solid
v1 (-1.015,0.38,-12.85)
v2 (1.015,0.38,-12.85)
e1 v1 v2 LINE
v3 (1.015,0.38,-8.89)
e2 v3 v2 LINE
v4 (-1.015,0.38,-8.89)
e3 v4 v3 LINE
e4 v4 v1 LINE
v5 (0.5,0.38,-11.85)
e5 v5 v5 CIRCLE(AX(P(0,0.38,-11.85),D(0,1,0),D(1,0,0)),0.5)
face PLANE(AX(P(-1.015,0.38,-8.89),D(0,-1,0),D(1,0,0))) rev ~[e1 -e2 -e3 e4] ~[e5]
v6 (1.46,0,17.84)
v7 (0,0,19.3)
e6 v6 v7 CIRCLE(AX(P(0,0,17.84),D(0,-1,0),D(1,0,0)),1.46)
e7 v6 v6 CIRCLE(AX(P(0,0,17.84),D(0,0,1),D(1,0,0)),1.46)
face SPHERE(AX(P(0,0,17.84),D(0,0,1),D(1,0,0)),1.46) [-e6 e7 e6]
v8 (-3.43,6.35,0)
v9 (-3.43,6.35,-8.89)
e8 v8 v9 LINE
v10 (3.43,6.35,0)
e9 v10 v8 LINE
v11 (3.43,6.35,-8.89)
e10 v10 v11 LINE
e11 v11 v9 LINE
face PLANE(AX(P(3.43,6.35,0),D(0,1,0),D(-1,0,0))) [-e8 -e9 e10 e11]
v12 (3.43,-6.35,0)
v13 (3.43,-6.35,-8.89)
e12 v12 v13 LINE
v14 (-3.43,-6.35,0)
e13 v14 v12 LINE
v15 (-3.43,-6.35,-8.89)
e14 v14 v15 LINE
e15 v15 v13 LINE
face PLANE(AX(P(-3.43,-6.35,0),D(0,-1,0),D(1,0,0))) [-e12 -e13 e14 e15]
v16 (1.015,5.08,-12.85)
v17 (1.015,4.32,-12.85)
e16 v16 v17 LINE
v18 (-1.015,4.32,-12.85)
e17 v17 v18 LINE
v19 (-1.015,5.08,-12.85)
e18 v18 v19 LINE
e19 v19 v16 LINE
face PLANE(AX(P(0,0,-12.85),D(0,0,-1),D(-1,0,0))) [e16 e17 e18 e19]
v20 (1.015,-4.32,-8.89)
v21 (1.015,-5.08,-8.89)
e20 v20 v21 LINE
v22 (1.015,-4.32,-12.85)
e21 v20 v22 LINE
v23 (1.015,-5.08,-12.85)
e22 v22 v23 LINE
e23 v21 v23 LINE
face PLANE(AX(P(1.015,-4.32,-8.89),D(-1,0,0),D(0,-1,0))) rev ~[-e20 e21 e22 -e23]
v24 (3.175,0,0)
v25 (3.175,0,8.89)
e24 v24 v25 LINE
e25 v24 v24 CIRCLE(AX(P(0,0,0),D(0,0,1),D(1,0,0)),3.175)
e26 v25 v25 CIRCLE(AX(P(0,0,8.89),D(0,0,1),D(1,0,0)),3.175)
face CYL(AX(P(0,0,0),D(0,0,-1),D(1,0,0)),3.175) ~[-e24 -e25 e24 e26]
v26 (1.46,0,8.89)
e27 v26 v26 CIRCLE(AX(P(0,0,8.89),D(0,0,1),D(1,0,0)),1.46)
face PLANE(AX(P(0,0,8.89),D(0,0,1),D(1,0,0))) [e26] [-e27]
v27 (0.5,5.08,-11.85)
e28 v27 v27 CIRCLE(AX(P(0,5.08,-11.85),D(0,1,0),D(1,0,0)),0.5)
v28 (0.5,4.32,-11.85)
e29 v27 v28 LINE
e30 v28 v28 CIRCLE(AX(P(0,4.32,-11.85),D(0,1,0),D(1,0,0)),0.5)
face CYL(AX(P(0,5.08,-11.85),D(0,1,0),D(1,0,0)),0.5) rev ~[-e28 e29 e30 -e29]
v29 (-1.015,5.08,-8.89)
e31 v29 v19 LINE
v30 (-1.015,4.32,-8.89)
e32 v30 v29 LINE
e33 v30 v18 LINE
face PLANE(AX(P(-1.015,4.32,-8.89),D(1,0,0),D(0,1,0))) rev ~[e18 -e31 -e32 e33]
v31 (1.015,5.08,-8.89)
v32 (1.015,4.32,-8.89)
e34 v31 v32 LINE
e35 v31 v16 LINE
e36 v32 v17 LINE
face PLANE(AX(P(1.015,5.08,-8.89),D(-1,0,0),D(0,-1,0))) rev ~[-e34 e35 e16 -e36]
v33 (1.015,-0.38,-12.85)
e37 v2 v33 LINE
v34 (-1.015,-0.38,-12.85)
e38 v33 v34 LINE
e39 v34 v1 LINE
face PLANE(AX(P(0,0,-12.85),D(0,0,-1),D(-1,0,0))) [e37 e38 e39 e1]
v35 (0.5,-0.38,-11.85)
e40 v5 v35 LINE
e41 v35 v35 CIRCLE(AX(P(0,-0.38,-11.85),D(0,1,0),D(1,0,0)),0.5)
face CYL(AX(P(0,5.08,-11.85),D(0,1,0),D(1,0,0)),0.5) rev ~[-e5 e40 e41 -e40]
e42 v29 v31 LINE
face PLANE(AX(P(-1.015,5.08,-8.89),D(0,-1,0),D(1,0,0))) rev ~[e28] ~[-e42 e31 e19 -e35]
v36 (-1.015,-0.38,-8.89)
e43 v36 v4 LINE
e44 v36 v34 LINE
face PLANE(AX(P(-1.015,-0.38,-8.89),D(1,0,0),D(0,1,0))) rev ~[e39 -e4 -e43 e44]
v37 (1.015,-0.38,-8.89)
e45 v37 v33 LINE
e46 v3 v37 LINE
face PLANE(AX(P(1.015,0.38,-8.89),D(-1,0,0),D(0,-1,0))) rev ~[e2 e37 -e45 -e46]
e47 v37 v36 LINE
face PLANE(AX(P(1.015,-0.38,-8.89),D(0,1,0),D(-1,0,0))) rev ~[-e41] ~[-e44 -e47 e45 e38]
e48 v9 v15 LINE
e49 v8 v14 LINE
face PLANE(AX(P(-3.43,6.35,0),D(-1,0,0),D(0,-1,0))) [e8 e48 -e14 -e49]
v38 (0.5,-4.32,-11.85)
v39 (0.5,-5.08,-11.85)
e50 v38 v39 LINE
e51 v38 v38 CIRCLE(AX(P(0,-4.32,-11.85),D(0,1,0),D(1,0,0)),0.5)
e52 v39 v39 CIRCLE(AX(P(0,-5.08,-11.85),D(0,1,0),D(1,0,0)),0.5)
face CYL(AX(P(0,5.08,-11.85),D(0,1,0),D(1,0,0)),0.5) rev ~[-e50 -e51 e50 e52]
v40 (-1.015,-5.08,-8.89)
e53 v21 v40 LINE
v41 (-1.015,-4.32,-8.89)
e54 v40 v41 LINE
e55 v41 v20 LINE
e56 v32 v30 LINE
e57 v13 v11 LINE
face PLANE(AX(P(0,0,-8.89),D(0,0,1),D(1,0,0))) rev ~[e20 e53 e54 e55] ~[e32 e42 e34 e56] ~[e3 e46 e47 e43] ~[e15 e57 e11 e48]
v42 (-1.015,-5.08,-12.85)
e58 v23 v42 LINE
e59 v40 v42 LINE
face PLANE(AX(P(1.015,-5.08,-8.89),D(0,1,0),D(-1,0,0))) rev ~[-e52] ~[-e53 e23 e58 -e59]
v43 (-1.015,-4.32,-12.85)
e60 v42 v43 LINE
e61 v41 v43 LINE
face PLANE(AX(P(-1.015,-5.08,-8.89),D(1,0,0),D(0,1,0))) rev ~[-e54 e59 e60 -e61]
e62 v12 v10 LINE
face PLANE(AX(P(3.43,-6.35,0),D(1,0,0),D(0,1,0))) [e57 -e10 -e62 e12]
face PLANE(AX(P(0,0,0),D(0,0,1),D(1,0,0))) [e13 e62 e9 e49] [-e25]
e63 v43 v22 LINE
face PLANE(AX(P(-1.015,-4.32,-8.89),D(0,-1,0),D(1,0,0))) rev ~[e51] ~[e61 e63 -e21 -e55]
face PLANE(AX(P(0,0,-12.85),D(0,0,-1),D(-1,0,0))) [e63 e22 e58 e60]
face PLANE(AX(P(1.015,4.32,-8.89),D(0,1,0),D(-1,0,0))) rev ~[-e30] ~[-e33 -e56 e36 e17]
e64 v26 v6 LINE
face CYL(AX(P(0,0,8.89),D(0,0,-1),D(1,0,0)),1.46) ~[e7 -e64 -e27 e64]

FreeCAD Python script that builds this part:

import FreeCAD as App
import Part
import Sketcher
from FreeCAD import Vector
Q = App.Units.Quantity


def edges_at(feature, points):
    """Names of the edges that pass closest to the given points."""
    edges = feature.Shape.Edges
    near = lambda p: min(range(len(edges)), key=lambda i: edges[i].distToShape(Part.Vertex(*p))[0])
    return sorted({f"Edge{near(p) + 1}" for p in points})


def add_polygon(sketch, points):
    """Adds a closed chain of lines whose ends are joined by coincident constraints."""
    first, n = sketch.GeometryCount, len(points)
    for a, b in zip(points, points[1:] + points[:1]):
        sketch.addGeometry(Part.LineSegment(App.Vector(*a, 0), App.Vector(*b, 0)), False)
    for i in range(n):
        sketch.addConstraint(Sketcher.Constraint("Coincident", first + i, 2, first + (i + 1) % n, 1))

doc = App.newDocument("Part")
body = doc.addObject("PartDesign::Body", "Body")

sketch1 = body.newObject("Sketcher::SketchObject", "Sketch")
sketch1.AttachmentSupport = (doc.getObject("XY_Plane"), [""])
sketch1.MapMode = "FlatFace"
add_polygon(sketch1, [(-3, 6), (-3, -6), (3, -6), (3, 6)])
sketch1.addConstraint([
    Sketcher.Constraint("Vertical", 0),
    Sketcher.Constraint("Horizontal", 1),
    Sketcher.Constraint("Vertical", 2),
    Sketcher.Constraint("Horizontal", 3),
    Sketcher.Constraint("Symmetric", 0, 2, 2, 2, -1, 1),
    Sketcher.Constraint("DistanceY", 0, 2, 0, 1, Q("0.5 in")),
    Sketcher.Constraint("DistanceX", 1, 1, 1, 2, Q("6.86 mm")),
])
pad1 = body.newObject("PartDesign::Pad", "Pad")
pad1.Profile = sketch1
pad1.Length = Q("0.35 in")
pad1.Reversed = True

sketch2 = body.newObject("Sketcher::SketchObject", "Sketch001")
sketch2.AttachmentSupport = (doc.getObject("XY_Plane"), [""])
sketch2.MapMode = "FlatFace"
sketch2.addGeometry(Part.Circle(Vector(0, 0, 0), Vector(0, 0, 1), 3.2), False)
sketch2.addConstraint([
    Sketcher.Constraint("Coincident", 0, 3, -1, 1),
    Sketcher.Constraint("Diameter", 0, Q("0.25 in")),
])
pad2 = body.newObject("PartDesign::Pad", "Pad001")
pad2.Profile = sketch2
pad2.Length = Q("0.35 in")

sketch3 = body.newObject("Sketcher::SketchObject", "Sketch002")
sketch3.AttachmentSupport = (doc.getObject("XY_Plane"), [""])
sketch3.MapMode = "FlatFace"
sketch3.AttachmentOffset = App.Placement(Vector(0, 0, -0.35 * 25.4), App.Rotation())
add_polygon(sketch3, [(1, 0.4), (1, -0.4), (-1, -0.4), (-1, 0.4)])
add_polygon(sketch3, [(1, -4.3), (1, -5.1), (-1, -5.1), (-1, -4.3)])
add_polygon(sketch3, [(1, 5.1), (1, 4.3), (-1, 4.3), (-1, 5.1)])
sketch3.addConstraint([
    Sketcher.Constraint("Vertical", 0),
    Sketcher.Constraint("Horizontal", 1),
    Sketcher.Constraint("Vertical", 2),
    Sketcher.Constraint("Horizontal", 3),
    Sketcher.Constraint("Vertical", 4),
    Sketcher.Constraint("Horizontal", 5),
    Sketcher.Constraint("Vertical", 6),
    Sketcher.Constraint("Horizontal", 7),
    Sketcher.Constraint("Vertical", 8),
    Sketcher.Constraint("Horizontal", 9),
    Sketcher.Constraint("Vertical", 10),
    Sketcher.Constraint("Horizontal", 11),
    Sketcher.Constraint("Symmetric", 0, 2, 2, 2, -1, 1),
    Sketcher.Constraint("Symmetric", 6, 2, 8, 2, -1, 1),
    Sketcher.Constraint("Symmetric", 4, 2, 10, 2, -1, 1),
    Sketcher.Constraint("Vertical", 3, 2, 4, 2),
    Sketcher.Constraint("Vertical", 2, 2, 5, 2),
    Sketcher.Constraint("Equal", 2, 4),
    Sketcher.Constraint("DistanceX", 1, 2, 1, 1, Q("2.03 mm")),
    Sketcher.Constraint("DistanceY", 0, 2, 0, 1, Q("0.76 mm")),
    Sketcher.Constraint("DistanceY", 4, 2, -1, 1, Q("0.2 in")),
])
pad3 = body.newObject("PartDesign::Pad", "Pad002")
pad3.Profile = sketch3
pad3.Length = Q("0.1559055 in")
pad3.Reversed = True

sketch4 = body.newObject("Sketcher::SketchObject", "Sketch003")
sketch4.AttachmentSupport = (doc.getObject("XZ_Plane"), [""])
sketch4.MapMode = "FlatFace"
sketch4.AttachmentOffset = App.Placement(Vector(0, 0, -0.2 * 25.4), App.Rotation())
sketch4.addGeometry(Part.Circle(Vector(0, -11.8, 0), Vector(0, 0, 1), 0.5), False)
sketch4.addConstraint([
    Sketcher.Constraint("PointOnObject", 0, 3, -2),
    Sketcher.Constraint("Diameter", 0, Q("1 mm")),
    Sketcher.Constraint("DistanceY", 0, 3, -1, 1, Q("11.85 mm")),
])
pocket1 = body.newObject("PartDesign::Pocket", "Pocket")
pocket1.Profile = sketch4
pocket1.Type = "ThroughAll"
pocket1.Reversed = True

sketch5 = body.newObject("Sketcher::SketchObject", "Sketch004")
sketch5.AttachmentSupport = (doc.getObject("XY_Plane"), [""])
sketch5.MapMode = "FlatFace"
sketch5.AttachmentOffset = App.Placement(Vector(0, 0, 0.35 * 25.4), App.Rotation())
sketch5.addGeometry(Part.Circle(Vector(0, 0, 0), Vector(0, 0, 1), 1.5), False)
sketch5.addConstraint([
    Sketcher.Constraint("Coincident", 0, 3, -1, 1),
    Sketcher.Constraint("Diameter", 0, Q("2.92 mm")),
])
pad4 = body.newObject("PartDesign::Pad", "Pad003")
pad4.Profile = sketch5
pad4.Length = 10.41
doc.recompute()

fillet = body.newObject("PartDesign::Fillet", "Fillet")
fillet.Base = (pad4, edges_at(pad4, [(-1.46, 0, 19.3)]))
fillet.Radius = 1.46

doc.recompute()
